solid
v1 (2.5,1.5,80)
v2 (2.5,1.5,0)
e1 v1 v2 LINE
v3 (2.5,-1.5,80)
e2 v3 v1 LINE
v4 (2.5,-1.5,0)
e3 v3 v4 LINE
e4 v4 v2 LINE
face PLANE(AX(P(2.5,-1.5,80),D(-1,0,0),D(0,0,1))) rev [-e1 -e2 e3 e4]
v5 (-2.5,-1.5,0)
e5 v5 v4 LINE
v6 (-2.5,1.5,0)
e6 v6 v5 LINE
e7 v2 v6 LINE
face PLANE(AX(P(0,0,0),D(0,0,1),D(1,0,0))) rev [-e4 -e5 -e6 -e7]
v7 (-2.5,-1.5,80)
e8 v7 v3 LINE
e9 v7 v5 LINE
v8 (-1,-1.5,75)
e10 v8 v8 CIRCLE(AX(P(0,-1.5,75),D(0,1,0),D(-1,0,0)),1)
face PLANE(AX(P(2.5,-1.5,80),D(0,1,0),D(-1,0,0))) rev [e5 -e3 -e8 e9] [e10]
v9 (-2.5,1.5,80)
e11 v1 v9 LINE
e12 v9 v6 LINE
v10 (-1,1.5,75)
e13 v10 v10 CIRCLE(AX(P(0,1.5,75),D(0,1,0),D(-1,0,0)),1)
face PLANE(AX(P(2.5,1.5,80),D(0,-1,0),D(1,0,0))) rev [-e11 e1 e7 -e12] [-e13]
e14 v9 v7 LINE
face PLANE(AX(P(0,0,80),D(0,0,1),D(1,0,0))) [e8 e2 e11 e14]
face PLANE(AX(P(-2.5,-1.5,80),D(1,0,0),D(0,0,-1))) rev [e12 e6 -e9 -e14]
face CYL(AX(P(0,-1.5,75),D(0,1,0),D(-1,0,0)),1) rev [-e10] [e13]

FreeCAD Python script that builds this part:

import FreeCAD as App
import Part
import Sketcher

V = App.Vector

doc = App.newDocument("Part")
body = doc.addObject("PartDesign::Body", "Body")

sketch1 = doc.addObject("Sketcher::SketchObject", "Sketch")
body.addObject(sketch1)
sketch1.AttachmentSupport = (doc.XY_Plane, [""])
sketch1.MapMode = "FlatFace"
sketch1.addGeometry([
    Part.LineSegment(V(-2.5, 1.5, 0), V(-2.5, -1.5, 0)),
    Part.LineSegment(V(-2.5, -1.5, 0), V(2.5, -1.5, 0)),
    Part.LineSegment(V(2.5, -1.5, 0), V(2.5, 1.5, 0)),
    Part.LineSegment(V(2.5, 1.5, 0), V(-2.5, 1.5, 0)),
], False)
sketch1.addConstraint([
    Sketcher.Constraint("Coincident", 0, 2, 1, 1),
    Sketcher.Constraint("Coincident", 1, 2, 2, 1),
    Sketcher.Constraint("Coincident", 2, 2, 3, 1),
    Sketcher.Constraint("Coincident", 3, 2, 0, 1),
    Sketcher.Constraint("Vertical", 0),
    Sketcher.Constraint("Horizontal", 1),
    Sketcher.Constraint("Vertical", 2),
    Sketcher.Constraint("Horizontal", 3),
    Sketcher.Constraint("Symmetric", 0, 2, 2, 2, -1, 1),
    Sketcher.Constraint("DistanceX", 1, 1, 1, 2, 5.0),
    Sketcher.Constraint("DistanceY", 0, 2, 0, 1, 3.0),
])
pad1 = doc.addObject("PartDesign::Pad", "Pad")
body.addObject(pad1)
pad1.Profile = sketch1
pad1.Length = 80

sketch2 = doc.addObject("Sketcher::SketchObject", "Sketch001")
body.addObject(sketch2)
sketch2.AttachmentSupport = (doc.XZ_Plane, [""])
sketch2.MapMode = "FlatFace"
sketch2.AttachmentOffset = App.Placement(V(0, 0, -1.5), App.Rotation())
sketch2.addGeometry(Part.Circle(V(0, 75, 0), V(0, 0, 1), 1), False)
sketch2.addConstraint([
    Sketcher.Constraint("PointOnObject", 0, 3, -2),
    Sketcher.Constraint("Diameter", 0, 2.0),
    Sketcher.Constraint("DistanceY", -1, 1, 0, 3, 75.0),
])
pocket1 = doc.addObject("PartDesign::Pocket", "Pocket")
body.addObject(pocket1)
pocket1.Profile = sketch2
pocket1.Type = "ThroughAll"
pocket1.Reversed = True

doc.recompute()
